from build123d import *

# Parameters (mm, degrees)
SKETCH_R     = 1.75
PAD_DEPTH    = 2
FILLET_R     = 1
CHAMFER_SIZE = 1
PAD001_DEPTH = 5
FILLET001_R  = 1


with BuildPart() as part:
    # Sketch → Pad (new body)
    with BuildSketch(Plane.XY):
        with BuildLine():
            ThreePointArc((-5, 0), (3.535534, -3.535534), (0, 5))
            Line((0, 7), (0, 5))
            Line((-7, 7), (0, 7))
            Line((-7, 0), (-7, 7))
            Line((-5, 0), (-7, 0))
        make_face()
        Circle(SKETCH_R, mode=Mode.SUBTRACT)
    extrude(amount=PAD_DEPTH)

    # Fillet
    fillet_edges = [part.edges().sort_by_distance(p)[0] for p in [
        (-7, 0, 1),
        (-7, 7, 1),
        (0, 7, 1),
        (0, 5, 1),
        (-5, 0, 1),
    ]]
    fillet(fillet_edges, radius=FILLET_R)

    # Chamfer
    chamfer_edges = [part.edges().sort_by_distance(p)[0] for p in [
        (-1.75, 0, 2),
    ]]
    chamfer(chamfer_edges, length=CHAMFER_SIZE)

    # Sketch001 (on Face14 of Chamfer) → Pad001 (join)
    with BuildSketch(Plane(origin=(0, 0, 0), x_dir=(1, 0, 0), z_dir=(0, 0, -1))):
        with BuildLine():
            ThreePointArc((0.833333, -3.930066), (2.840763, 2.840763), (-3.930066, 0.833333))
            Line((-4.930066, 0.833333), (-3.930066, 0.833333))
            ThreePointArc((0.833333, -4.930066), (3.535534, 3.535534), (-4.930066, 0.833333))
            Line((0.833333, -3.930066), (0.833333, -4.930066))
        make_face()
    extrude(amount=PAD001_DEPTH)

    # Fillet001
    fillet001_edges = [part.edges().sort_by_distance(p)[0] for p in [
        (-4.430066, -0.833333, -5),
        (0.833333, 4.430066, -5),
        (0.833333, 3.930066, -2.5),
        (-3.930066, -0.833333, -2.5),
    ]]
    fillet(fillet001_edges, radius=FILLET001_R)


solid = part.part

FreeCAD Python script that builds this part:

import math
import FreeCAD as App
import Part
import Sketcher
from FreeCAD import Vector


def edges_at(feature, points):
    """Names of the edges that pass closest to the given points."""
    edges = feature.Shape.Edges
    near = lambda p: min(range(len(edges)), key=lambda i: edges[i].distToShape(Part.Vertex(*p))[0])
    return sorted({f"Edge{near(p) + 1}" for p in points})

doc = App.newDocument("Part")
body = doc.addObject("PartDesign::Body", "Body")

# Sketch on XY plane
sketch1 = body.newObject("Sketcher::SketchObject", "Sketch")
sketch1.AttachmentSupport = (doc.getObject("XY_Plane"), [""])
sketch1.MapMode = "FlatFace"
sketch1.addGeometry([
    Part.ArcOfCircle(Part.Circle(Vector(0, 0, 0), Vector(0, 0, 1), 5), math.radians(179.999999), math.radians(450.000001)),  # 0
    Part.LineSegment(Vector(0, 5, 0), Vector(0, 7, 0)),  # 1
    Part.LineSegment(Vector(0, 7, 0), Vector(-7, 7, 0)),  # 2
    Part.LineSegment(Vector(-7, 7, 0), Vector(-7, 0, 0)),  # 3
    Part.LineSegment(Vector(-7, 0, 0), Vector(-5, 0, 0)),  # 4
    Part.Circle(Vector(0, 0, 0), Vector(0, 0, 1), 1.75),  # 5
], False)
sketch1.addConstraint([
    Sketcher.Constraint("Coincident", 0, 2, 1, 1),
    Sketcher.Constraint("Coincident", 1, 2, 2, 1),
    Sketcher.Constraint("Coincident", 2, 2, 3, 1),
    Sketcher.Constraint("Coincident", 3, 2, 4, 1),
    Sketcher.Constraint("Coincident", 4, 2, 0, 1),
    Sketcher.Constraint("Vertical", 1),
    Sketcher.Constraint("Horizontal", 2),
    Sketcher.Constraint("Vertical", 3),
    Sketcher.Constraint("Horizontal", 4),
    Sketcher.Constraint("Coincident", 0, 3, -1, 1),
    Sketcher.Constraint("Coincident", 5, 3, -1, 1),
    Sketcher.Constraint("PointOnObject", 0, 2, -2),
    Sketcher.Constraint("PointOnObject", 3, 2, -1),
    Sketcher.Constraint("Equal", 4, 1),
    Sketcher.Constraint("Radius", 0, 5.0),
    Sketcher.Constraint("Diameter", 5, 3.5),
    Sketcher.Constraint("DistanceX", 2, 2, 2, 1, 7.0),
])
pad1 = body.newObject("PartDesign::Pad", "Pad")
pad1.Profile = sketch1
pad1.Length = 2
doc.recompute()

fillet = body.newObject("PartDesign::Fillet", "Fillet")
fillet.Base = (pad1, edges_at(pad1, [
    (-7, 0, 1),
    (-7, 7, 1),
    (0, 7, 1),
    (0, 5, 1),
    (-5, 0, 1),
]))
fillet.Radius = 1
doc.recompute()

chamfer = body.newObject("PartDesign::Chamfer", "Chamfer")
chamfer.Base = (fillet, edges_at(fillet, [(-1.75, 0, 2)]))
chamfer.Size = 1

# Sketch on XY plane
sketch2 = body.newObject("Sketcher::SketchObject", "Sketch001")
sketch2.AttachmentSupport = (doc.getObject("XY_Plane"), [""])
sketch2.MapMode = "FlatFace"
sketch2.addGeometry([
    Part.ArcOfCircle(Part.Circle(Vector(0, 0, 0), Vector(0, 0, 1), 4.017445), math.radians(-168.028301), math.radians(78.028301)),
    Part.LineSegment(Vector(0.833333, 3.930066, 0), Vector(0.833333, 4.930066, 0)),
    Part.ArcOfCircle(Part.Circle(Vector(0, 0, 0), Vector(0, 0, 1), 5), math.radians(-170.405939), math.radians(80.405939)),
    Part.LineSegment(Vector(-4.930066, -0.833333, 0), Vector(-3.930066, -0.833333, 0)),
], False)
sketch2.addConstraint([
    Sketcher.Constraint("Coincident", 0, 2, 1, 1),
    Sketcher.Constraint("Coincident", 1, 2, 2, 2),
    Sketcher.Constraint("Coincident", 2, 1, 3, 1),
    Sketcher.Constraint("Coincident", 3, 2, 0, 1),
    Sketcher.Constraint("Vertical", 1),
    Sketcher.Constraint("Horizontal", 3),
    Sketcher.Constraint("Coincident", 0, 3, -1, 1),
    Sketcher.Constraint("Coincident", 2, 3, -1, 1),
    Sketcher.Constraint("Equal", 3, 1),
    Sketcher.Constraint("Radius", 2, 5.0),
    Sketcher.Constraint("DistanceX", 3, 1, 3, 2, 1.0),
    Sketcher.Constraint("Radius", 0, 4.017445),
])
pad2 = body.newObject("PartDesign::Pad", "Pad001")
pad2.Profile = sketch2
pad2.Length = 5
pad2.Reversed = True
doc.recompute()

fillet2 = body.newObject("PartDesign::Fillet", "Fillet001")
fillet2.Base = (pad2, edges_at(pad2, [
    (-4.43, -0.833, -5),
    (0.833, 4.43, -5),
    (0.833, 3.93, -2.5),
    (-3.93, -0.833, -2.5),
]))
fillet2.Radius = 1

doc.recompute()
